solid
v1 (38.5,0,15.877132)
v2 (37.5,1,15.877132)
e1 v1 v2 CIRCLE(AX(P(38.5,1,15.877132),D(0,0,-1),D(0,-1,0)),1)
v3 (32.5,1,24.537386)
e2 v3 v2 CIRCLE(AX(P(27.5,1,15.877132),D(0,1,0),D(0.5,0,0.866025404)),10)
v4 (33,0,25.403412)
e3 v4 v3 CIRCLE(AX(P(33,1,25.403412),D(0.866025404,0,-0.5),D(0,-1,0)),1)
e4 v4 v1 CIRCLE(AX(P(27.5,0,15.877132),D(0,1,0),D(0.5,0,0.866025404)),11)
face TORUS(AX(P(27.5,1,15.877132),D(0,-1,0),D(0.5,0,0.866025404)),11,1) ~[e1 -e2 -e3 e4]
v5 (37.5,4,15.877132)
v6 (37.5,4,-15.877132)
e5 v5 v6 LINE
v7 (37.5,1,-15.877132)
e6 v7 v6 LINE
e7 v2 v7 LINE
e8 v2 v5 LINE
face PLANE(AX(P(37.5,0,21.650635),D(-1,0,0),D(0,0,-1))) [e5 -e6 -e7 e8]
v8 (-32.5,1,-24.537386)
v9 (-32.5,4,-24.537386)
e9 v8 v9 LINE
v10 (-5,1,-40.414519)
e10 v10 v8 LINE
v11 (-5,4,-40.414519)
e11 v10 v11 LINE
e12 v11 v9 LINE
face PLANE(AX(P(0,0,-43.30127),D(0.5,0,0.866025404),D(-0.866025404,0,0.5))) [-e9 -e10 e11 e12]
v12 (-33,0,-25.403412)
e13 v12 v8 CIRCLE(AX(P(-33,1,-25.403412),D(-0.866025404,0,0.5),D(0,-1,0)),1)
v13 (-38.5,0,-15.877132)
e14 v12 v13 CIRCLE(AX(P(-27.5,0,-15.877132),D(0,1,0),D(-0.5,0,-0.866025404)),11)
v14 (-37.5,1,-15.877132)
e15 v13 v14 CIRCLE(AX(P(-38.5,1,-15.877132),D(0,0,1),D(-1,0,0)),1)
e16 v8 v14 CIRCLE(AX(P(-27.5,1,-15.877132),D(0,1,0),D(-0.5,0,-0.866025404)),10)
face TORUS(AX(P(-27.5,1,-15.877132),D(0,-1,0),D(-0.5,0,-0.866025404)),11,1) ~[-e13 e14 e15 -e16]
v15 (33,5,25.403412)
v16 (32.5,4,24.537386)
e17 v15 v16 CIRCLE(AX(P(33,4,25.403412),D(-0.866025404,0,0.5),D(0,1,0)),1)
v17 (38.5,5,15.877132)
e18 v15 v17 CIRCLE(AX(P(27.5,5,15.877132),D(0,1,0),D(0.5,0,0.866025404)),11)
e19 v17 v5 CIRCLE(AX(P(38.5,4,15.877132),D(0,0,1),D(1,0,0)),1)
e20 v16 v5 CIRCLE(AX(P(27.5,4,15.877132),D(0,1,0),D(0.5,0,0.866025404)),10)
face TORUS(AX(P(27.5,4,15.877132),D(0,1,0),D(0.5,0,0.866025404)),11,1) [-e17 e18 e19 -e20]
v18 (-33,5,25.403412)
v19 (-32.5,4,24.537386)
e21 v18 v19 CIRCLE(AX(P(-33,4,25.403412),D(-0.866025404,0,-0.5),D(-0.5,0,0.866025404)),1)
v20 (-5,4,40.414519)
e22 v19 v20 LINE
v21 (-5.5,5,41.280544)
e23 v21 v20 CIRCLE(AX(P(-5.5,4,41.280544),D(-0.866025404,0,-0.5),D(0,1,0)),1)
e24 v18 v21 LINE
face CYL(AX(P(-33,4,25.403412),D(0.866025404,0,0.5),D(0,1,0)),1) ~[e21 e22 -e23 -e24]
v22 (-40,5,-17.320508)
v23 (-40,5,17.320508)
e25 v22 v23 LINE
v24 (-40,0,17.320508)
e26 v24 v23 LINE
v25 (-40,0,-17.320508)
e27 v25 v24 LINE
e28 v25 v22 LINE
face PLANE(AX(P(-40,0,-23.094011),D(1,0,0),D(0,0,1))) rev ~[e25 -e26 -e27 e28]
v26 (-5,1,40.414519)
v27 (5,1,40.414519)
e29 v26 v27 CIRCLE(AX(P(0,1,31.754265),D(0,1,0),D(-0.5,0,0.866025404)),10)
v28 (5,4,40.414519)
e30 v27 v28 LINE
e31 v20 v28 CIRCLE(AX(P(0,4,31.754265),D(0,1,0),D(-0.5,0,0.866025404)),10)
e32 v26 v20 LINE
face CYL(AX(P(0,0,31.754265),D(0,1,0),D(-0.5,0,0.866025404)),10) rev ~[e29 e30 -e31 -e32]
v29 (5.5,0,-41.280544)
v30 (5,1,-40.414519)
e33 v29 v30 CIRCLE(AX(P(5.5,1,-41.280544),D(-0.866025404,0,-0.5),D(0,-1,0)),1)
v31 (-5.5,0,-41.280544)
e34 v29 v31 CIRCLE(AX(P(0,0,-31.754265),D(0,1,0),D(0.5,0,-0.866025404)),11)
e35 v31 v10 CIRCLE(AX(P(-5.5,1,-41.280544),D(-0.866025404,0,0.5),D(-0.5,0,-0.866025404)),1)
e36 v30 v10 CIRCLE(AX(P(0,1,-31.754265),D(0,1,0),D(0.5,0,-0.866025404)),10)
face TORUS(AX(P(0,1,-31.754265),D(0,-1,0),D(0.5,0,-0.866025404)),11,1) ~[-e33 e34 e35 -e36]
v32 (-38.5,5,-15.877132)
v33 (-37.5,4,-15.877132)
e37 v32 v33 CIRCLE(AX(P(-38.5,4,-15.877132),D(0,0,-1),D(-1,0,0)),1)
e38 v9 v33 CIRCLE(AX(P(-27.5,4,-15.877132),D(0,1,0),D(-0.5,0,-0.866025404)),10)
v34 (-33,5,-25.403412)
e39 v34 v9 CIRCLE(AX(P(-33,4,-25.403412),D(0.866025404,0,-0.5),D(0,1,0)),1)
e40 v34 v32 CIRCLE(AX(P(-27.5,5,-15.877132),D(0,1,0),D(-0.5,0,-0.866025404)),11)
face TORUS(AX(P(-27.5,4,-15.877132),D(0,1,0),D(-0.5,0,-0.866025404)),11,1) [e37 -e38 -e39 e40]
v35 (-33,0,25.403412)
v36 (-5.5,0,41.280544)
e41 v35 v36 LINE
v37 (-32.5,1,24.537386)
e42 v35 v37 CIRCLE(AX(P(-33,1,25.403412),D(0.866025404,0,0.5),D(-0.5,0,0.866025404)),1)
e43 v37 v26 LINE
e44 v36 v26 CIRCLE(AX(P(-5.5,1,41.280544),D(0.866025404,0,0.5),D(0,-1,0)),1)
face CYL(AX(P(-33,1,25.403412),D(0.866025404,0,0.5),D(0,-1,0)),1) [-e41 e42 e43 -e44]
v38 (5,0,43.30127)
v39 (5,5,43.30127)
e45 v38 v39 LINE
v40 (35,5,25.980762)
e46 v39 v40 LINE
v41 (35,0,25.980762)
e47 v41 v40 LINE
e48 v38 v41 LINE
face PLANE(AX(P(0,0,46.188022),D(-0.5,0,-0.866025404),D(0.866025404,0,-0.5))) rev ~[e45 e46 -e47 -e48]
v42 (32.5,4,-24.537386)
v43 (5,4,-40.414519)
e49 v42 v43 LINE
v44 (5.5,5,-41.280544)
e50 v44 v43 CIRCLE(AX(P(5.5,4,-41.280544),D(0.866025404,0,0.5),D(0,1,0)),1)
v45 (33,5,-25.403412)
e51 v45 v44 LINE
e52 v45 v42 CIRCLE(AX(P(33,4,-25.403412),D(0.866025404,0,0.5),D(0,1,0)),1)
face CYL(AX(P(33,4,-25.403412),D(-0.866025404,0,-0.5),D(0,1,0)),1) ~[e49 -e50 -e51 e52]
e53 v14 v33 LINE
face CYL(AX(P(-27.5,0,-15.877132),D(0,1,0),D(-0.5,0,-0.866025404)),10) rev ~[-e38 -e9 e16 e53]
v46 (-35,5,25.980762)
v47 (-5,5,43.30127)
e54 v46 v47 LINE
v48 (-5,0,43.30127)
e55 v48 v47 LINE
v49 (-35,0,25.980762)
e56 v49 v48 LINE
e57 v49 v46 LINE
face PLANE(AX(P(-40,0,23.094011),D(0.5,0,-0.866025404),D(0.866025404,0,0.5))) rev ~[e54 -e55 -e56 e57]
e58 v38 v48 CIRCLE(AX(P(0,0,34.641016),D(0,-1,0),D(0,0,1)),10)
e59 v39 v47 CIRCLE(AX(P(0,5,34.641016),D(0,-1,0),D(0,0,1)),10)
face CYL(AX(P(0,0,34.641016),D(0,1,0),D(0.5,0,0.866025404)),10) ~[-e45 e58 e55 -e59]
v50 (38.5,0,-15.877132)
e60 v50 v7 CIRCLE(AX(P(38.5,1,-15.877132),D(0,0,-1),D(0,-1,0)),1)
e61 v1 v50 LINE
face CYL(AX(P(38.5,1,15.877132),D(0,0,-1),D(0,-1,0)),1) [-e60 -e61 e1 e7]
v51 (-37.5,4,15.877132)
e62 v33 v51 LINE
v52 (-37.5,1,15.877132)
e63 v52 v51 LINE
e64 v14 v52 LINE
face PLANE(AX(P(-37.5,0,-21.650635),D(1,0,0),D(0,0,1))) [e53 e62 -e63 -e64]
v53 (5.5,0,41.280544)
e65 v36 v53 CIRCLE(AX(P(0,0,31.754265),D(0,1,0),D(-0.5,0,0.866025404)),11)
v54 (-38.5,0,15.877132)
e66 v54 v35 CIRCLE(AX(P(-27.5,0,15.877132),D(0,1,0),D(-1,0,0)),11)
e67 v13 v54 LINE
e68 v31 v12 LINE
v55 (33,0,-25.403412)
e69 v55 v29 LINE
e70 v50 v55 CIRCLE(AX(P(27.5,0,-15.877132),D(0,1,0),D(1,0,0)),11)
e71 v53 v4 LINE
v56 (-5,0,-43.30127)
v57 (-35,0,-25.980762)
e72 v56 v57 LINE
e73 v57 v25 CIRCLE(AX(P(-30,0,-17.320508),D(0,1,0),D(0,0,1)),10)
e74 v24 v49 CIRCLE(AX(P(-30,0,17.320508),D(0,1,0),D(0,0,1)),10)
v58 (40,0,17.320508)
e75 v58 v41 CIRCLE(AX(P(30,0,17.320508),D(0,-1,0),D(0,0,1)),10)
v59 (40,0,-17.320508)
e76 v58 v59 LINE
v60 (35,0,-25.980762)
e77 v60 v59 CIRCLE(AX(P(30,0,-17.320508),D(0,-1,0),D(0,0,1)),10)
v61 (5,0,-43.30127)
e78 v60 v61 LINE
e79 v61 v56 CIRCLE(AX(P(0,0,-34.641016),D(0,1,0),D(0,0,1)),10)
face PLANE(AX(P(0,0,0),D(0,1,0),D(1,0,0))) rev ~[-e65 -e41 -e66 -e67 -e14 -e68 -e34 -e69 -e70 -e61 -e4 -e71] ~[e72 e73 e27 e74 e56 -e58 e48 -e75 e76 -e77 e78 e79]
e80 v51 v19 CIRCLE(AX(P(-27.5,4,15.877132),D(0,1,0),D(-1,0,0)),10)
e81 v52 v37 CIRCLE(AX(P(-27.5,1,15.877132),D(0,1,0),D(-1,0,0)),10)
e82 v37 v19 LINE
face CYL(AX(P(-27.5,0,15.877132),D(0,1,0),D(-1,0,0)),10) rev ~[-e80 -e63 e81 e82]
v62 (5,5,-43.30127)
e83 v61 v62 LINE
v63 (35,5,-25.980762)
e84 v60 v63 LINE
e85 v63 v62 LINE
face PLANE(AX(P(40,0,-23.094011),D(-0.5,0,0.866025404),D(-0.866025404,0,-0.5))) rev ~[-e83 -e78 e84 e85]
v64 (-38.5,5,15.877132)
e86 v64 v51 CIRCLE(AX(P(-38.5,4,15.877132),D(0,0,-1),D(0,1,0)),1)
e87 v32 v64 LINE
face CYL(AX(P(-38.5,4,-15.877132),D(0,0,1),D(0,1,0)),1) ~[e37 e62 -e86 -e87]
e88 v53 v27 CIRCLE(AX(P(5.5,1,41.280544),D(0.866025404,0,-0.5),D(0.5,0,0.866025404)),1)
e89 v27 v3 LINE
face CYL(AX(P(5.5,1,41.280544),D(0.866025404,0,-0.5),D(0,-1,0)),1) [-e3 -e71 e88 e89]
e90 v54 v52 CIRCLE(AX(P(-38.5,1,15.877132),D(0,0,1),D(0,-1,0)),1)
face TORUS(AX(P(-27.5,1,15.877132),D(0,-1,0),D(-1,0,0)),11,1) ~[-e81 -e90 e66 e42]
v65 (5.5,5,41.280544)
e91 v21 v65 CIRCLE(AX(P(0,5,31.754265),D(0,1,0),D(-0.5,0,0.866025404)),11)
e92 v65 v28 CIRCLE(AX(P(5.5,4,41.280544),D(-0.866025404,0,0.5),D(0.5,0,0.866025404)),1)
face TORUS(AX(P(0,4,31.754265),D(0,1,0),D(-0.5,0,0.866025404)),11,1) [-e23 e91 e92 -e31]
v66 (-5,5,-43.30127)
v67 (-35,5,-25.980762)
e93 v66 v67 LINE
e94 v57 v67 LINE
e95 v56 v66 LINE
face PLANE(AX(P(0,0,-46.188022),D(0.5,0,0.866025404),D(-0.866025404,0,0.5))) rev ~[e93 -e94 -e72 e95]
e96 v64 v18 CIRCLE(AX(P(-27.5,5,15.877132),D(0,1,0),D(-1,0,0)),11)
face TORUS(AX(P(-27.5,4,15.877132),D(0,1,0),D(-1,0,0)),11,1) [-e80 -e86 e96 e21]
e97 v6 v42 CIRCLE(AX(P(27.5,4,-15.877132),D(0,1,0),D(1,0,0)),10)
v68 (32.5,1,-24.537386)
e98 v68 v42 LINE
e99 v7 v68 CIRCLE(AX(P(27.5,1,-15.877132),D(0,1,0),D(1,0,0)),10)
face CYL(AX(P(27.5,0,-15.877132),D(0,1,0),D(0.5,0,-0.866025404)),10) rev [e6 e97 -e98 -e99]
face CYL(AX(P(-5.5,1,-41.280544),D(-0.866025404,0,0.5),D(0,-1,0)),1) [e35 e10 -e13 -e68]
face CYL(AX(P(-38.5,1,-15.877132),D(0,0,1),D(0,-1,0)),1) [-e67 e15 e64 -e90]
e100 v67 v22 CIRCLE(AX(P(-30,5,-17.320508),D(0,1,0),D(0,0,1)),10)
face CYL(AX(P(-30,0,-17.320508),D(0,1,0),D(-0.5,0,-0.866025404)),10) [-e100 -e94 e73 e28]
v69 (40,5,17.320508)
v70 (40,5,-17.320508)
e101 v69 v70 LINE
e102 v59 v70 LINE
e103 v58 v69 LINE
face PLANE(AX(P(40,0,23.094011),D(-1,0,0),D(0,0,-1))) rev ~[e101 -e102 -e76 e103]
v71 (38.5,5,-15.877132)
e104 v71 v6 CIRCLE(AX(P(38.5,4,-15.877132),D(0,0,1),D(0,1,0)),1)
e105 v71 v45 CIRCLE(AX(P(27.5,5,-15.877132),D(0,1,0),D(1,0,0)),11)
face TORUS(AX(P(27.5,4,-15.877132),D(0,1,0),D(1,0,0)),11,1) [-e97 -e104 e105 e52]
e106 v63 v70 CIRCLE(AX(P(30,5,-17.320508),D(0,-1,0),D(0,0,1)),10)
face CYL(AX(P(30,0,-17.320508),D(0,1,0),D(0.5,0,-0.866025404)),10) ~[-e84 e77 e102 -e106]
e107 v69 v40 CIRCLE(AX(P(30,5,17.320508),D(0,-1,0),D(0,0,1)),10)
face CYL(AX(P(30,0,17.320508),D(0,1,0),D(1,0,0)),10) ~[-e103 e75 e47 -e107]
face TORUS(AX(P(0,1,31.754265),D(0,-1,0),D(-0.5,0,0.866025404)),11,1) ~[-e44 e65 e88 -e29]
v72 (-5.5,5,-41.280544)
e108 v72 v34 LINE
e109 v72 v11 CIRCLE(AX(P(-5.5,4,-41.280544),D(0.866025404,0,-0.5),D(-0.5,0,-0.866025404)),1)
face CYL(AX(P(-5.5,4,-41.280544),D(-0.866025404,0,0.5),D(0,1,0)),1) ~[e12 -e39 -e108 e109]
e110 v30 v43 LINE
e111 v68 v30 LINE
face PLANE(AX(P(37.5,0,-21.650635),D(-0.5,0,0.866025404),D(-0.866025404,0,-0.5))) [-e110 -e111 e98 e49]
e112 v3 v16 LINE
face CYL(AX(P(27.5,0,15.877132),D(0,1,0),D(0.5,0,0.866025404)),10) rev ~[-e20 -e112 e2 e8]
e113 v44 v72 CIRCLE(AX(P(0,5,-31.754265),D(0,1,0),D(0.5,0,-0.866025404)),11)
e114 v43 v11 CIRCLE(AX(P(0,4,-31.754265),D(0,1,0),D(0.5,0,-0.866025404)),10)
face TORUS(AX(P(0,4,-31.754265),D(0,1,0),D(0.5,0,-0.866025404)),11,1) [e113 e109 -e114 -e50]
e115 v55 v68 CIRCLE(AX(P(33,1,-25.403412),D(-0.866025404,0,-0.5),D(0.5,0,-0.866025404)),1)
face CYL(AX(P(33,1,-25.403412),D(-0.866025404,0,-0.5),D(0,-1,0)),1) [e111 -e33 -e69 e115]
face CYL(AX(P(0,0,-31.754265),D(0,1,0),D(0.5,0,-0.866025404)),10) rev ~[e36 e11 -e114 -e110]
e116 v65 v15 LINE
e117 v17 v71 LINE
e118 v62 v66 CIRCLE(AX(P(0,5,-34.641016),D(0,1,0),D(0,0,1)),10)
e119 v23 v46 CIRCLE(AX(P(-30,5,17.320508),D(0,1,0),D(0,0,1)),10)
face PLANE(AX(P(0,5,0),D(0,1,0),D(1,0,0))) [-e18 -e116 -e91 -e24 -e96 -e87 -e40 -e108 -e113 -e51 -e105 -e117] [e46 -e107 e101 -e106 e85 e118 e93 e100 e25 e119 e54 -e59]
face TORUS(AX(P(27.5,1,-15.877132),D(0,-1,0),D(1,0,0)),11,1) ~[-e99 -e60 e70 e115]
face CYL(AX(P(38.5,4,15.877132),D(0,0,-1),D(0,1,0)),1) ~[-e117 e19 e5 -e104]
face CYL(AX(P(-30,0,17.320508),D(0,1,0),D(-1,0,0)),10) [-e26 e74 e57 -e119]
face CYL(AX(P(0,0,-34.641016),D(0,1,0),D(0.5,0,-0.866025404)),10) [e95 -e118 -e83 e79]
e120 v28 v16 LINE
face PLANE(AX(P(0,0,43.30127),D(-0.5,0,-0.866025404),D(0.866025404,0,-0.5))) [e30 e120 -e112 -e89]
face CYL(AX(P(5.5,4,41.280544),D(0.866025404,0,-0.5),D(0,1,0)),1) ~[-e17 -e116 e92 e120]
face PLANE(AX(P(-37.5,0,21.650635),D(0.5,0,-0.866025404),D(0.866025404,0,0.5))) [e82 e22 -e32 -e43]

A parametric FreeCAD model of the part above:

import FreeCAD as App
import Part
import Sketcher
Q = App.Units.Quantity


def edges_at(feature, points):
    """Names of the edges that pass closest to the given points."""
    edges = feature.Shape.Edges
    near = lambda p: min(range(len(edges)), key=lambda i: edges[i].distToShape(Part.Vertex(*p))[0])
    return sorted({f"Edge{near(p) + 1}" for p in points})

doc = App.newDocument("Part")
params = doc.addObject("Spreadsheet::Sheet", "Params")
for row, (alias, value) in enumerate([
    ("pad1_length", "5 mm"),
    ("fillet_radius", "10 mm"),
    ("fillet2_radius", "1 mm"),
], start=1):
    params.set(f"A{row}", alias)
    params.set(f"B{row}", "=" + value)
    params.setAlias(f"B{row}", alias)

body = doc.addObject("PartDesign::Body", "Body")

# Sketch on XZ plane
sketch1 = doc.addObject("Sketcher::SketchObject", "Sketch")
body.addObject(sketch1)
sketch1.AttachmentSupport = (doc.XZ_Plane, [""])
sketch1.MapMode = "FlatFace"
sketch1.addGeometry([
    Part.LineSegment(App.Vector(40, -23, 0), App.Vector(0, -46, 0)),  # 0
    Part.LineSegment(App.Vector(0, -46, 0), App.Vector(-40, -23, 0)),  # 1
    Part.LineSegment(App.Vector(-40, -23, 0), App.Vector(-40, 23, 0)),  # 2
    Part.LineSegment(App.Vector(-40, 23, 0), App.Vector(0, 46, 0)),  # 3
    Part.LineSegment(App.Vector(0, 46, 0), App.Vector(40, 23, 0)),  # 4
    Part.LineSegment(App.Vector(40, 23, 0), App.Vector(40, -23, 0)),  # 5
    Part.LineSegment(App.Vector(0, -43, 0), App.Vector(38, -22, 0)),  # 6
    Part.LineSegment(App.Vector(38, -22, 0), App.Vector(38, 22, 0)),  # 7
    Part.LineSegment(App.Vector(38, 22, 0), App.Vector(0, 43, 0)),  # 8
    Part.LineSegment(App.Vector(0, 43, 0), App.Vector(-38, 22, 0)),  # 9
    Part.LineSegment(App.Vector(-38, 22, 0), App.Vector(-38, -22, 0)),  # 10
    Part.LineSegment(App.Vector(-38, -22, 0), App.Vector(0, -43, 0)),  # 11
], False)
sketch1.addConstraint([
    Sketcher.Constraint("Coincident", 0, 2, 1, 1),
    Sketcher.Constraint("Coincident", 1, 2, 2, 1),
    Sketcher.Constraint("Coincident", 2, 2, 3, 1),
    Sketcher.Constraint("Coincident", 3, 2, 4, 1),
    Sketcher.Constraint("Coincident", 4, 2, 5, 1),
    Sketcher.Constraint("Coincident", 5, 2, 0, 1),
    Sketcher.Constraint("Coincident", 6, 2, 7, 1),
    Sketcher.Constraint("Coincident", 7, 2, 8, 1),
    Sketcher.Constraint("Coincident", 8, 2, 9, 1),
    Sketcher.Constraint("Coincident", 9, 2, 10, 1),
    Sketcher.Constraint("Coincident", 10, 2, 11, 1),
    Sketcher.Constraint("Coincident", 11, 2, 6, 1),
    Sketcher.Constraint("Vertical", 2),
    Sketcher.Constraint("Vertical", 5),
    Sketcher.Constraint("Vertical", 7),
    Sketcher.Constraint("Vertical", 10),
    Sketcher.Constraint("Symmetric", 0, 2, 3, 2, -1, 1),
    Sketcher.Constraint("Symmetric", 1, 2, 4, 2, -1, 1),
    Sketcher.Constraint("Symmetric", 6, 2, 9, 2, -1, 1),
    Sketcher.Constraint("Symmetric", 8, 2, 11, 2, -1, 1),
    Sketcher.Constraint("PointOnObject", 0, 2, -2),
    Sketcher.Constraint("PointOnObject", 8, 2, -2),
    Sketcher.Constraint("Parallel", 0, 3),
    Sketcher.Constraint("Parallel", 3, 6),
    Sketcher.Constraint("Parallel", 4, 8),
    Sketcher.Constraint("Parallel", 8, 11),
    Sketcher.Constraint("Horizontal", 2, 2, 4, 2),
    Sketcher.Constraint("Angle", 0, Q("-150 deg")),
    Sketcher.Constraint("DistanceX", 1, 2, -1, 1, Q("40 mm")),
    Sketcher.Constraint("DistanceX", 9, 2, 7, 2, Q("75 mm")),
    Sketcher.Constraint("DistanceY", 2, 1, 2, 2, Q("46.188022 mm")),
    Sketcher.Constraint("DistanceY", 7, 1, 7, 2, Q("43.30127 mm")),
])
pad1 = doc.addObject("PartDesign::Pad", "Pad")
body.addObject(pad1)
pad1.Profile = sketch1
pad1.setExpression("Length", "Params.pad1_length")
pad1.Reversed = True
doc.recompute()

fillet = doc.addObject("PartDesign::Fillet", "Fillet")
body.addObject(fillet)
fillet.Base = (pad1, edges_at(pad1, [
    (37.5, 2.5, 21.651),
    (37.5, 2.5, -21.651),
    (0, 2.5, -43.301),
    (-37.5, 2.5, -21.651),
    (-37.5, 2.5, 21.651),
    (0, 2.5, 43.301),
    (40, 2.5, 23.094),
    (0, 2.5, 46.188),
    (-40, 2.5, 23.094),
    (-40, 2.5, -23.094),
    (0, 2.5, -46.188),
    (40, 2.5, -23.094),
]))
fillet.setExpression("Radius", "Params.fillet_radius")
doc.recompute()

fillet2 = doc.addObject("PartDesign::Fillet", "Fillet001")
body.addObject(fillet2)
fillet2.Base = (fillet, edges_at(fillet, [
    (37.5, 0, 0),
    (18.75, 0, -32.476),
    (-18.75, 0, -32.476),
    (-37.5, 0, 0),
    (-18.75, 0, 32.476),
    (18.75, 0, 32.476),
    (18.75, 5, -32.476),
    (37.5, 5, 0),
    (18.75, 5, 32.476),
    (-18.75, 5, 32.476),
    (-37.5, 5, 0),
    (-18.75, 5, -32.476),
    (36.16, 0, 20.877),
    (36.16, 5, 20.877),
    (0, 0, 41.754),
    (0, 5, 41.754),
    (36.16, 0, -20.877),
    (36.16, 5, -20.877),
    (0, 0, -41.754),
    (0, 5, -41.754),
    (-36.16, 0, -20.877),
    (-36.16, 5, -20.877),
    (-36.16, 0, 20.877),
    (-36.16, 5, 20.877),
]))
fillet2.setExpression("Radius", "Params.fillet2_radius")

doc.recompute()
